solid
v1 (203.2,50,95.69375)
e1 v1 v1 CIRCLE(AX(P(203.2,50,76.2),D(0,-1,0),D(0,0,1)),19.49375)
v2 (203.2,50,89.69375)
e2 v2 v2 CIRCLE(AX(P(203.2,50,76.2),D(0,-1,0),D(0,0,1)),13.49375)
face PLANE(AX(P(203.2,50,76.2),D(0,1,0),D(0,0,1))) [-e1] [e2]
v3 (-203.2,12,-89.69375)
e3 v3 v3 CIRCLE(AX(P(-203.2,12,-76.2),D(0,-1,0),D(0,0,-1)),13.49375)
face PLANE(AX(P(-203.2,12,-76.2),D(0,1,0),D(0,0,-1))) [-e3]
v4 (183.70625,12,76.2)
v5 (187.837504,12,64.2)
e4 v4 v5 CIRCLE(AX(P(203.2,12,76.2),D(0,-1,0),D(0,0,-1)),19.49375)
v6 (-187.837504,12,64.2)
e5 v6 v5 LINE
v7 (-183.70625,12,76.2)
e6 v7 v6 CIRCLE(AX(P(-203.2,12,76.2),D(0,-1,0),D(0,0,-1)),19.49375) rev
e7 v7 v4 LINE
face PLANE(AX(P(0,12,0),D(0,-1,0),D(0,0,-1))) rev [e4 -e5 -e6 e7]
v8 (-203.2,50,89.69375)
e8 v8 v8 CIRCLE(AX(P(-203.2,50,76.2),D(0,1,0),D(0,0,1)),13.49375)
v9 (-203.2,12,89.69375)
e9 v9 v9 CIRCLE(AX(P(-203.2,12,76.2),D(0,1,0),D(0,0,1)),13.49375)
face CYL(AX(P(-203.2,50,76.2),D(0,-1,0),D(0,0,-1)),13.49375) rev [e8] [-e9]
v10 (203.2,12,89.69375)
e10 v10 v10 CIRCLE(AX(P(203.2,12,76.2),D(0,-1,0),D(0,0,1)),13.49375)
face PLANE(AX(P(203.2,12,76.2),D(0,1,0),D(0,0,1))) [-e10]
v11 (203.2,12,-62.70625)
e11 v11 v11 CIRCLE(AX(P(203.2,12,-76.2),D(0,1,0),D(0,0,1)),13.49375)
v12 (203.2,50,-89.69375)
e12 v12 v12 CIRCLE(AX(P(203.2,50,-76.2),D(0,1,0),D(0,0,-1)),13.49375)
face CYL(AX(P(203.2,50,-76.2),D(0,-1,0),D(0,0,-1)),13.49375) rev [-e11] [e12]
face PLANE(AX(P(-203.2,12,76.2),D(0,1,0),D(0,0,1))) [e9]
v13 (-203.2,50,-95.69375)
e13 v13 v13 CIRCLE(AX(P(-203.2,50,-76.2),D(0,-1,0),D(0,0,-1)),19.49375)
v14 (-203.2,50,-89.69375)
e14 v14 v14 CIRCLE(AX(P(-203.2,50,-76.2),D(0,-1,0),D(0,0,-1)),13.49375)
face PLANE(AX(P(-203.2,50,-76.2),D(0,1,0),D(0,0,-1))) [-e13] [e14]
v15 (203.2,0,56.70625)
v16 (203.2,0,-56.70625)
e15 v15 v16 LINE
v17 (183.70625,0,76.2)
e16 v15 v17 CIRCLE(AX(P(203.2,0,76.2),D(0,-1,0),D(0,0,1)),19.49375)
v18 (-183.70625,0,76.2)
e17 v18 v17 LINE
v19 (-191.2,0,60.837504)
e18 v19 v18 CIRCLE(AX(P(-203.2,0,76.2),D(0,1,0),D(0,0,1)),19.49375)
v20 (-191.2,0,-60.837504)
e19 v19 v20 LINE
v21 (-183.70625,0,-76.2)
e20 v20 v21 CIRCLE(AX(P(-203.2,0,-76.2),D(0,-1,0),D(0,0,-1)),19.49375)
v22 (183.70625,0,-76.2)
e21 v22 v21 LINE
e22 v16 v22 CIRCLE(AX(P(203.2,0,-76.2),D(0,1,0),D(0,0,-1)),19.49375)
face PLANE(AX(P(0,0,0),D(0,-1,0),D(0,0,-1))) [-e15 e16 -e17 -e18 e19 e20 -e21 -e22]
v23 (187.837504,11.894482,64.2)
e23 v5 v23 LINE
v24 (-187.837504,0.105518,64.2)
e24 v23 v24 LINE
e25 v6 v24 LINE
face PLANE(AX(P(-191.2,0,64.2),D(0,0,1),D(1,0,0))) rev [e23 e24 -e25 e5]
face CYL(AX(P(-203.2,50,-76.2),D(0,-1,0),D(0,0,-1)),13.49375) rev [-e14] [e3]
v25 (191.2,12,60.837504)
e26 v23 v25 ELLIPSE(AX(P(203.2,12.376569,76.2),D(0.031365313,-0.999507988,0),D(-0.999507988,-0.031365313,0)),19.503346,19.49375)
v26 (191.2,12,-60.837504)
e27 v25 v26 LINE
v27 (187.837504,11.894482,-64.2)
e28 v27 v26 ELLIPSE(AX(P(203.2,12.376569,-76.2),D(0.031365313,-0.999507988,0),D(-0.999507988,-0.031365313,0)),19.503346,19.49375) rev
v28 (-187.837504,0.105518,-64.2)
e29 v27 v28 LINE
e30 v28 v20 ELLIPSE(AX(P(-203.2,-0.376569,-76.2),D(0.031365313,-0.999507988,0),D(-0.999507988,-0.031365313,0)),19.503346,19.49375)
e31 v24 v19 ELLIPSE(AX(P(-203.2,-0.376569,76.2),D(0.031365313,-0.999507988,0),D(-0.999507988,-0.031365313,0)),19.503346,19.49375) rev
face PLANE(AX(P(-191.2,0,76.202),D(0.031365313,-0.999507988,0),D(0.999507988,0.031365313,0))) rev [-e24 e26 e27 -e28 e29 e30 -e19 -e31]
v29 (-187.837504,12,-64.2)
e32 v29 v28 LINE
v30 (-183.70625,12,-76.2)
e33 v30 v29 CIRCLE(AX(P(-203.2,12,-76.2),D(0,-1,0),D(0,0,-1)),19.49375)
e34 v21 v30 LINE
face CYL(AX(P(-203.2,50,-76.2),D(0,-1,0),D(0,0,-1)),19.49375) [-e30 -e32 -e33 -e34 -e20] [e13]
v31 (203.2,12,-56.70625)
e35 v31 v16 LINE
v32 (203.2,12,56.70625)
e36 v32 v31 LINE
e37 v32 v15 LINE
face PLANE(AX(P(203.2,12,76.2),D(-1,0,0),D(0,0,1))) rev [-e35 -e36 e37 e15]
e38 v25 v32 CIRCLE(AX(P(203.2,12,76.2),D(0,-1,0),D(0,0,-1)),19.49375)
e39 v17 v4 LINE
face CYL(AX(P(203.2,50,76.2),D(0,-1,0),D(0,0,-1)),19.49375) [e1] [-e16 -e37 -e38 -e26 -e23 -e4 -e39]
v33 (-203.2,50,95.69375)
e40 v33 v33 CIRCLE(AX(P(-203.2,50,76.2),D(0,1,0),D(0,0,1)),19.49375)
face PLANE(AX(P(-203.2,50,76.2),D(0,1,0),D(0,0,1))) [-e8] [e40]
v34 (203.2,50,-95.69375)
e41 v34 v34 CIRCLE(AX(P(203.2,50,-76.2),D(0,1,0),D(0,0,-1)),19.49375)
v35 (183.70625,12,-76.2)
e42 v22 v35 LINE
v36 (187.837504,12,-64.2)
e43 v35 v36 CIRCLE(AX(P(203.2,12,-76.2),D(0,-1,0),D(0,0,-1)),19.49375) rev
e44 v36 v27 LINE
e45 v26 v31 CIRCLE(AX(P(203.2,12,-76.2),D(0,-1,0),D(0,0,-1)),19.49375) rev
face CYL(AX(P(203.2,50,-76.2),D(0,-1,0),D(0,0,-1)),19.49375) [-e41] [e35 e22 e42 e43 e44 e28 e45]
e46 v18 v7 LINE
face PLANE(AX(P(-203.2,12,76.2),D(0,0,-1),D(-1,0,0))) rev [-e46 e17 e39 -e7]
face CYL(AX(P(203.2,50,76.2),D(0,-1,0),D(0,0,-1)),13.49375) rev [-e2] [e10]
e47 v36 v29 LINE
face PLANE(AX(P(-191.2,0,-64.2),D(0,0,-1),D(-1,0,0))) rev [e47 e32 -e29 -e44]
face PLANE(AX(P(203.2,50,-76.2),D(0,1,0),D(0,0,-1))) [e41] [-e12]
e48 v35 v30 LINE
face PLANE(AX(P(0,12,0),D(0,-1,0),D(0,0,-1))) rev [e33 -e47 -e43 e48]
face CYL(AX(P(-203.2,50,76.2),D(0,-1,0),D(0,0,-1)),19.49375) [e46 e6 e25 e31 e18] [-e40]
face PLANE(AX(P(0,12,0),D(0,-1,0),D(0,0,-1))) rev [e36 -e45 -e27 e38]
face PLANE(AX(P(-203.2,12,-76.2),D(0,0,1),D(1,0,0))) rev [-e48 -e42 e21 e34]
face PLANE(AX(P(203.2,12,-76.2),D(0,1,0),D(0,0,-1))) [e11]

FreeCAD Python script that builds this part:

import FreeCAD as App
import Part
import Sketcher
Q = App.Units.Quantity

doc = App.newDocument("Part")
body = doc.addObject("PartDesign::Body", "Body")

# Sketch on XZ plane
sketch1 = body.newObject("Sketcher::SketchObject", "Sketch")
sketch1.AttachmentSupport = (doc.getObject("XZ_Plane"), [""])
sketch1.MapMode = "FlatFace"
sketch1.addGeometry([
    Part.LineSegment(App.Vector(-203, -76, 0), App.Vector(-203, 76, 0)),
    Part.LineSegment(App.Vector(-203, 76, 0), App.Vector(203, 76, 0)),
    Part.LineSegment(App.Vector(203, 76, 0), App.Vector(203, -76, 0)),
    Part.LineSegment(App.Vector(203, -76, 0), App.Vector(-203, -76, 0)),
], False)
sketch1.addConstraint([
    Sketcher.Constraint("Coincident", 0, 2, 1, 1),
    Sketcher.Constraint("Coincident", 1, 2, 2, 1),
    Sketcher.Constraint("Coincident", 2, 2, 3, 1),
    Sketcher.Constraint("Coincident", 3, 2, 0, 1),
    Sketcher.Constraint("Vertical", 0),
    Sketcher.Constraint("Horizontal", 1),
    Sketcher.Constraint("Vertical", 2),
    Sketcher.Constraint("Horizontal", 3),
    Sketcher.Constraint("Symmetric", 0, 2, 2, 2, -1, 1),
    Sketcher.Constraint("DistanceX", 1, 1, 1, 2, Q("406.4 mm")),
    Sketcher.Constraint("DistanceY", 0, 1, 0, 2, Q("152.4 mm")),
])
pad1 = body.newObject("PartDesign::Pad", "Pad")
pad1.Profile = sketch1
pad1.Length = 12
pad1.Reversed = True

# Sketch on XZ plane
sketch2 = body.newObject("Sketcher::SketchObject", "Sketch001")
sketch2.AttachmentSupport = (doc.getObject("XZ_Plane"), [""])
sketch2.MapMode = "FlatFace"
sketch2.AttachmentOffset = App.Placement(App.Vector(0, 0, -12), App.Rotation())
sketch2.addGeometry([
    Part.LineSegment(App.Vector(-203, 64, 0), App.Vector(191, 64, 0)),
    Part.LineSegment(App.Vector(191, 64, 0), App.Vector(191, -64, 0)),
    Part.LineSegment(App.Vector(191, -64, 0), App.Vector(-203, -64, 0)),
    Part.LineSegment(App.Vector(-203, -64, 0), App.Vector(-203, 64, 0)),
], False)
sketch2.addConstraint([
    Sketcher.Constraint("Coincident", 0, 2, 1, 1),
    Sketcher.Constraint("Coincident", 1, 2, 2, 1),
    Sketcher.Constraint("Coincident", 2, 2, 3, 1),
    Sketcher.Constraint("Coincident", 3, 2, 0, 1),
    Sketcher.Constraint("Horizontal", 0),
    Sketcher.Constraint("Vertical", 1),
    Sketcher.Constraint("Horizontal", 2),
    Sketcher.Constraint("Vertical", 3),
    Sketcher.Constraint("DistanceX", 0, 1, 0, 2, Q("394.4 mm")),
    Sketcher.Constraint("DistanceY", 1, 2, 1, 1, Q("128.4 mm")),
    Sketcher.Constraint("DistanceX", -1, 1, 0, 2, Q("191.2 mm")),
    Sketcher.Constraint("DistanceY", -1, 1, 0, 2, Q("64.2 mm")),
])
pocket1 = body.newObject("PartDesign::Pocket", "Pocket")
pocket1.Profile = sketch2
pocket1.Length = 12
pocket1.Reversed = True

# Sketch on XY plane
sketch3 = body.newObject("Sketcher::SketchObject", "Sketch002")
sketch3.AttachmentSupport = (doc.getObject("XY_Plane"), [""])
sketch3.MapMode = "FlatFace"
sketch3.AttachmentOffset = App.Placement(App.Vector(0, 0, -64.2), App.Rotation())
sketch3.addGeometry([
    Part.LineSegment(App.Vector(191, 12, 0), App.Vector(-191, 0, 0)),
    Part.LineSegment(App.Vector(-191, 0, 0), App.Vector(191, 0, 0)),
    Part.LineSegment(App.Vector(191, 0, 0), App.Vector(191, 12, 0)),
], False)
sketch3.addConstraint([
    Sketcher.Constraint("Coincident", 0, 2, 1, 1),
    Sketcher.Constraint("Coincident", 1, 2, 2, 1),
    Sketcher.Constraint("Coincident", 2, 2, 0, 1),
    Sketcher.Constraint("Horizontal", 1),
    Sketcher.Constraint("Vertical", 2),
    Sketcher.Constraint("Symmetric", 0, 2, 1, 2, -1, 1),
    Sketcher.Constraint("DistanceY", 2, 1, 2, 2, Q("12 mm")),
    Sketcher.Constraint("DistanceX", 1, 1, 1, 2, Q("382.4 mm")),
])
pad2 = body.newObject("PartDesign::Pad", "Pad001")
pad2.Profile = sketch3
pad2.Type = "UpToFirst"

# Sketch on XZ plane
sketch4 = body.newObject("Sketcher::SketchObject", "Sketch003")
sketch4.AttachmentSupport = (doc.getObject("XZ_Plane"), [""])
sketch4.MapMode = "FlatFace"
sketch4.addGeometry([
    Part.Circle(App.Vector(-203, 76, 0), App.Vector(0, 0, 1), 19),
    Part.Circle(App.Vector(-203, 76, 0), App.Vector(0, 0, 1), 13),
], False)
sketch4.addConstraint([
    Sketcher.Constraint("Coincident", 1, 3, 0, 3),
    Sketcher.Constraint("Diameter", 0, Q("38.9875 mm")),
    Sketcher.Constraint("Diameter", 1, Q("26.9875 mm")),
    Sketcher.Constraint("DistanceX", 0, 3, -1, 1, Q("203.2 mm")),
    Sketcher.Constraint("DistanceY", -1, 1, 0, 3, Q("76.2 mm")),
])
pad3 = body.newObject("PartDesign::Pad", "Pad002")
pad3.Profile = sketch4
pad3.Length = 50
pad3.Reversed = True

# Sketch on XZ plane
sketch5 = body.newObject("Sketcher::SketchObject", "Sketch004")
sketch5.AttachmentSupport = (doc.getObject("XZ_Plane"), [""])
sketch5.MapMode = "FlatFace"
sketch5.addGeometry(Part.Circle(App.Vector(-203, 76, 0), App.Vector(0, 0, 1), 13), False)
sketch5.addConstraint([
    Sketcher.Constraint("Diameter", 0, Q("26.9875 mm")),
    Sketcher.Constraint("DistanceX", 0, 3, -1, 1, Q("203.2 mm")),
    Sketcher.Constraint("DistanceY", -1, 1, 0, 3, Q("76.2 mm")),
])
pocket2 = body.newObject("PartDesign::Pocket", "Pocket001")
pocket2.Profile = sketch5
pocket2.Length = 50

# Sketch on XZ plane
sketch6 = body.newObject("Sketcher::SketchObject", "Sketch005")
sketch6.AttachmentSupport = (doc.getObject("XZ_Plane"), [""])
sketch6.MapMode = "FlatFace"
sketch6.addGeometry(Part.Circle(App.Vector(-203, 76, 0), App.Vector(0, 0, 1), 13), False)
sketch6.addConstraint([
    Sketcher.Constraint("Diameter", 0, Q("26.9875 mm")),
    Sketcher.Constraint("DistanceX", 0, 3, -1, 1, Q("203.2 mm")),
    Sketcher.Constraint("DistanceY", -1, 1, 0, 3, Q("76.2 mm")),
])
pad4 = body.newObject("PartDesign::Pad", "Pad003")
pad4.Profile = sketch6
pad4.Length = 12
pad4.Reversed = True
doc.recompute()

mirrored = body.newObject("PartDesign::Mirrored", "Mirrored")
mirrored.Originals = [pad3, pocket2, pad4]
mirrored.MirrorPlane = (doc.getObject("YZ_Plane"), [""])
body.Tip = mirrored
doc.recompute()

mirrored2 = body.newObject("PartDesign::Mirrored", "Mirrored001")
mirrored2.Originals = [pad3, pocket2, pad4]
mirrored2.MirrorPlane = (doc.getObject("XY_Plane"), [""])
body.Tip = mirrored2

# Sketch on XZ plane
sketch7 = body.newObject("Sketcher::SketchObject", "Sketch006")
sketch7.AttachmentSupport = (doc.getObject("XZ_Plane"), [""])
sketch7.MapMode = "FlatFace"
sketch7.addGeometry([
    Part.Circle(App.Vector(203, -76, 0), App.Vector(0, 0, 1), 19),
    Part.Circle(App.Vector(203, -76, 0), App.Vector(0, 0, 1), 13),
], False)
sketch7.addConstraint([
    Sketcher.Constraint("Coincident", 1, 3, 0, 3),
    Sketcher.Constraint("Diameter", 0, Q("38.9875 mm")),
    Sketcher.Constraint("Diameter", 1, Q("26.9875 mm")),
    Sketcher.Constraint("DistanceX", -1, 1, 0, 3, Q("203.2 mm")),
    Sketcher.Constraint("DistanceY", 0, 3, -1, 1, Q("76.2 mm")),
])
pad5 = body.newObject("PartDesign::Pad", "Pad004")
pad5.Profile = sketch7
pad5.Length = 50
pad5.Reversed = True

# Sketch on XZ plane
sketch8 = body.newObject("Sketcher::SketchObject", "Sketch007")
sketch8.AttachmentSupport = (doc.getObject("XZ_Plane"), [""])
sketch8.MapMode = "FlatFace"
sketch8.addGeometry(Part.Circle(App.Vector(203, -76, 0), App.Vector(0, 0, 1), 13), False)
sketch8.addConstraint([
    Sketcher.Constraint("Diameter", 0, Q("26.9875 mm")),
    Sketcher.Constraint("DistanceX", -1, 1, 0, 3, Q("203.2 mm")),
    Sketcher.Constraint("DistanceY", 0, 3, -1, 1, Q("76.2 mm")),
])
pocket3 = body.newObject("PartDesign::Pocket", "Pocket002")
pocket3.Profile = sketch8
pocket3.Length = 50

# Sketch on XZ plane
sketch9 = body.newObject("Sketcher::SketchObject", "Sketch008")
sketch9.AttachmentSupport = (doc.getObject("XZ_Plane"), [""])
sketch9.MapMode = "FlatFace"
sketch9.addGeometry(Part.Circle(App.Vector(203, -76, 0), App.Vector(0, 0, 1), 13), False)
sketch9.addConstraint([
    Sketcher.Constraint("Diameter", 0, Q("26.9875 mm")),
    Sketcher.Constraint("DistanceX", -1, 1, 0, 3, Q("203.2 mm")),
    Sketcher.Constraint("DistanceY", 0, 3, -1, 1, Q("76.2 mm")),
])
pad6 = body.newObject("PartDesign::Pad", "Pad005")
pad6.Profile = sketch9
pad6.Length = 12
pad6.Reversed = True

doc.recompute()
